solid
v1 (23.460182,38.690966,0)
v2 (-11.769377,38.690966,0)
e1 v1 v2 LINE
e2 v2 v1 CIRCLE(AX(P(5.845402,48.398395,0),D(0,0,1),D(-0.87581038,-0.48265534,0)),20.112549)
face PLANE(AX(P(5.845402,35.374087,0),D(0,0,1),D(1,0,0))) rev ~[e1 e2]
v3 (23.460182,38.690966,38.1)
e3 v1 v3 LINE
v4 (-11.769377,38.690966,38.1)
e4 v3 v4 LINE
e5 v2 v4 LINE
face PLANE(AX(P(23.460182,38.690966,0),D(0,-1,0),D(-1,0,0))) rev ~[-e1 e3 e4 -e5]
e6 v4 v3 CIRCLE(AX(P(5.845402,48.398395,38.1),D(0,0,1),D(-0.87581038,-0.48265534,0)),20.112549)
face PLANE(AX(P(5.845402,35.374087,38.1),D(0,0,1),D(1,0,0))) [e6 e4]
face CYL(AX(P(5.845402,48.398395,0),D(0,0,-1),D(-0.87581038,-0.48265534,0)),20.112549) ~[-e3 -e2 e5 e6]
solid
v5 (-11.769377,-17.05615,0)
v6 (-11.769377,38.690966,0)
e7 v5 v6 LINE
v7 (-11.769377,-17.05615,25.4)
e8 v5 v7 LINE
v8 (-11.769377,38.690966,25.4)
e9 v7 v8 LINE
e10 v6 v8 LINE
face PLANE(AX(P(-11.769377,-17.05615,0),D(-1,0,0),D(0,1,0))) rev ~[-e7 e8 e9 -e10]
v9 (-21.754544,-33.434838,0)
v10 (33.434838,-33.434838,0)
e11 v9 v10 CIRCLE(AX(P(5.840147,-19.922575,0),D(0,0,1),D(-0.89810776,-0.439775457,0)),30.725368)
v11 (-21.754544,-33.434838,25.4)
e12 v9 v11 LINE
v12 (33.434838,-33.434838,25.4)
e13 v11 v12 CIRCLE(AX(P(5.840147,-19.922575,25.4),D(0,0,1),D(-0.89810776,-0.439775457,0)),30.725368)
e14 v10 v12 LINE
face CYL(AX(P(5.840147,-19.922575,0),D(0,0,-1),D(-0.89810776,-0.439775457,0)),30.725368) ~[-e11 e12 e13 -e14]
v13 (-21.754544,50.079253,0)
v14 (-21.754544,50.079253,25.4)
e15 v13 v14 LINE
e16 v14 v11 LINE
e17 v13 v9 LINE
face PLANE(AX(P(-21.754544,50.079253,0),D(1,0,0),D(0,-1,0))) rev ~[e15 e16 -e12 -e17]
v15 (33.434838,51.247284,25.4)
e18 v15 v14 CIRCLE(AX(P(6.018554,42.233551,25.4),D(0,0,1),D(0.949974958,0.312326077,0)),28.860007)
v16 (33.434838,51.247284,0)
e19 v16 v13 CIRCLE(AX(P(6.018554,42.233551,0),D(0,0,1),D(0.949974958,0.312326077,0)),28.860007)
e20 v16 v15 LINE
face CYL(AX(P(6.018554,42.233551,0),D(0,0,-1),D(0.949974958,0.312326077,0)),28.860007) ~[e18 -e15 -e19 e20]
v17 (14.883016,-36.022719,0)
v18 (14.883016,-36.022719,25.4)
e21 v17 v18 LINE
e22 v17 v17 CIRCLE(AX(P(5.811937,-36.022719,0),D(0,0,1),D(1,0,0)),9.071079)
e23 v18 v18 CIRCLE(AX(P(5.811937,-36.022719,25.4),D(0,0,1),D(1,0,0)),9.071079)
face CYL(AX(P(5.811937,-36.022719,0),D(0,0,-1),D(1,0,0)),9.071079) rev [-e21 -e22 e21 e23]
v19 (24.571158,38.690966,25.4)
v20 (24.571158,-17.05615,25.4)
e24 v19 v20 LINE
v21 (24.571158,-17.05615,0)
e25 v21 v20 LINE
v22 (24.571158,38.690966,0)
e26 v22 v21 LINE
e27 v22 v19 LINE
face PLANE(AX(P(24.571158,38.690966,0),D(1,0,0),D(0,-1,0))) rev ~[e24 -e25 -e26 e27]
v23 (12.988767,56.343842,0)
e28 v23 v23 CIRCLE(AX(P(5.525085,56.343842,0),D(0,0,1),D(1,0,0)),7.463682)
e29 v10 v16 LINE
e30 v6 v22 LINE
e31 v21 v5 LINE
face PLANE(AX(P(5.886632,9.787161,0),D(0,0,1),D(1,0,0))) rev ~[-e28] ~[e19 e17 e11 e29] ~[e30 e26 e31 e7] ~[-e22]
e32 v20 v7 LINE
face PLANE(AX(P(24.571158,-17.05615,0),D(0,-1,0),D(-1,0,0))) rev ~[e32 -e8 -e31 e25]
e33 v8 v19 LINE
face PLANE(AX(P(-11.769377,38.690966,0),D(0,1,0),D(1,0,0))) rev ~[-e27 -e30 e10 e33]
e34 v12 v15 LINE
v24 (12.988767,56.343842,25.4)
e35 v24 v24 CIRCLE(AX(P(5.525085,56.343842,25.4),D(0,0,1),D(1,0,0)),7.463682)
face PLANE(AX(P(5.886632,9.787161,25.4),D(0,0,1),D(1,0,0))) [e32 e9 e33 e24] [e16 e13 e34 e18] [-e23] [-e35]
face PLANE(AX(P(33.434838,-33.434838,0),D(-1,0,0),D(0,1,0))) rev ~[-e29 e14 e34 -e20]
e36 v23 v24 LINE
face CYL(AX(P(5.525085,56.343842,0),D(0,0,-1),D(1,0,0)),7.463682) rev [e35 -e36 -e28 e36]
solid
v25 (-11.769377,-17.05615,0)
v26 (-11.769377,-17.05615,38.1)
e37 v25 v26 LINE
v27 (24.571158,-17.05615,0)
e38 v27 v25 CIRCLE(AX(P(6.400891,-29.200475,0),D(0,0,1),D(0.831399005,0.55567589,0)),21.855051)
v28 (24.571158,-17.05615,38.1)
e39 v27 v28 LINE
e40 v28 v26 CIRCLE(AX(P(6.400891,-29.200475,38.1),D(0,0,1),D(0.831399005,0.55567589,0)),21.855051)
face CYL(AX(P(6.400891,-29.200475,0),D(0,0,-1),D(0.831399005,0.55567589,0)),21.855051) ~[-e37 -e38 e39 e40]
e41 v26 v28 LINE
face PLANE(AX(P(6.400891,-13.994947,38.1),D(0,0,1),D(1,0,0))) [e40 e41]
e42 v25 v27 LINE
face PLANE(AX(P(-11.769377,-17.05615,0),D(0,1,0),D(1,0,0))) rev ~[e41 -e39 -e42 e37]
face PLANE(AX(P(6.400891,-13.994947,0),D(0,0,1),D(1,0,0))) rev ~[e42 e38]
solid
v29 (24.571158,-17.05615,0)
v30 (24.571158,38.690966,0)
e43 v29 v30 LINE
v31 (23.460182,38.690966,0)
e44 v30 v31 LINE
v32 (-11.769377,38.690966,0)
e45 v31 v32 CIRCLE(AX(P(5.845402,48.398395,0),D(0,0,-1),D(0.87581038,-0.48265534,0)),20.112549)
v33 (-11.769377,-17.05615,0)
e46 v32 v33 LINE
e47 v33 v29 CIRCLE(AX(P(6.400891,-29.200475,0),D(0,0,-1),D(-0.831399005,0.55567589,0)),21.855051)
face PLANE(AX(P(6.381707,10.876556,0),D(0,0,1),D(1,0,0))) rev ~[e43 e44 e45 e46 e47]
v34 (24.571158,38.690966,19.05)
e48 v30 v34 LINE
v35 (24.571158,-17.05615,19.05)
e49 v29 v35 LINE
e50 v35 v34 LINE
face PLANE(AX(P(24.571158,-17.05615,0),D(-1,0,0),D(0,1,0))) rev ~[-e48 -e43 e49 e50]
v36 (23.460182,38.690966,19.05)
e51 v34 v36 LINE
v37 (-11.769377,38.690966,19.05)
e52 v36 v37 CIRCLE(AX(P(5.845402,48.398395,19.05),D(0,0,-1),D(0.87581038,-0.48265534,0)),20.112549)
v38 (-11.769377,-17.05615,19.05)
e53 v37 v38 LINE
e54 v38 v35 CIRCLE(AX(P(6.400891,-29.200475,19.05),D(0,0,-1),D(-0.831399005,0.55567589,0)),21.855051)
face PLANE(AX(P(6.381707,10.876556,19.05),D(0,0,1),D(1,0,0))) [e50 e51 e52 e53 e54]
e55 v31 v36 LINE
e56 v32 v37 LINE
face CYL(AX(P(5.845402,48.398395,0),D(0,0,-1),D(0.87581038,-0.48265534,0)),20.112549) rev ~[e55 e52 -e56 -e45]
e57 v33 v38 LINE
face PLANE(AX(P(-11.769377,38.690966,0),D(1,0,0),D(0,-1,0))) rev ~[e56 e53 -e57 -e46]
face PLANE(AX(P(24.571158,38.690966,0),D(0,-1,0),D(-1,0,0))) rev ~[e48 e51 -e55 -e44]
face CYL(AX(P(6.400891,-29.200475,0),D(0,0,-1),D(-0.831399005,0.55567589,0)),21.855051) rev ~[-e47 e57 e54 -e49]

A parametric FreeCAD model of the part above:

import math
import FreeCAD as App
import Part
import Sketcher

V = App.Vector
Q = App.Units.Quantity


def add_polygon(sketch, points):
    """Adds a closed chain of lines whose ends are joined by coincident constraints."""
    first, n = sketch.GeometryCount, len(points)
    for a, b in zip(points, points[1:] + points[:1]):
        sketch.addGeometry(Part.LineSegment(App.Vector(*a, 0), App.Vector(*b, 0)), False)
    for i in range(n):
        sketch.addConstraint(Sketcher.Constraint("Coincident", first + i, 2, first + (i + 1) % n, 1))

doc = App.newDocument("Part")
body = doc.addObject("PartDesign::Body", "Body")
body.AllowCompound = True

sketch1 = body.newObject("Sketcher::SketchObject", "Sketch")
sketch1.AttachmentSupport = (doc.getObject("XY_Plane"), [""])
sketch1.MapMode = "FlatFace"
sketch1.addGeometry(Part.LineSegment(V(23, 39, 0), V(-12, 39, 0)), False)
sketch1.addGeometry(Part.ArcOfCircle(Part.Circle(V(6, 48, 0), V(0, 0, 1), 20), math.radians(-151), math.radians(-29)), False)
sketch1.addGeometry(Part.ArcOfCircle(Part.Circle(V(6, -29, 0), V(0, 0, 1), 22), math.radians(34), math.radians(146)), False)
sketch1.addGeometry(Part.LineSegment(V(-12, -17, 0), V(25, -17, 0)), False)
sketch1.addConstraint(Sketcher.Constraint("Coincident", 0, 1, 1, 2))
sketch1.addConstraint(Sketcher.Constraint("Coincident", 1, 1, 0, 2))
sketch1.addConstraint(Sketcher.Constraint("Coincident", 2, 1, 3, 2))
sketch1.addConstraint(Sketcher.Constraint("Coincident", 3, 1, 2, 2))
sketch1.addConstraint(Sketcher.Constraint("Horizontal", 0))
sketch1.addConstraint(Sketcher.Constraint("Horizontal", 3))
sketch1.addConstraint(Sketcher.Constraint("Vertical", 1, 1, 3, 1))
sketch1.addConstraint(Sketcher.Constraint("Radius", 1, Q("20.112549 mm")))
sketch1.addConstraint(Sketcher.Constraint("Radius", 2, Q("21.855051 mm")))
sketch1.addConstraint(Sketcher.Constraint("DistanceX", 0, 2, 0, 1, Q("35.229559 mm")))
sketch1.addConstraint(Sketcher.Constraint("DistanceX", 3, 1, 3, 2, Q("36.340535 mm")))
sketch1.addConstraint(Sketcher.Constraint("DistanceX", -1, 1, 2, 3, Q("6.400891 mm")))
sketch1.addConstraint(Sketcher.Constraint("DistanceY", 2, 1, -1, 1, Q("17.05615 mm")))
sketch1.addConstraint(Sketcher.Constraint("DistanceY", 2, 3, 1, 3, Q("77.59887 mm")))
pad1 = body.newObject("PartDesign::Pad", "Pad")
pad1.Profile = sketch1
pad1.Length = Q("1.5 in")
body2 = doc.addObject("PartDesign::Body", "Body001")

sketch2 = body2.newObject("Sketcher::SketchObject", "Sketch001")
sketch2.AttachmentSupport = (doc.getObject("XY_Plane001"), [""])
sketch2.MapMode = "FlatFace"
sketch2.addGeometry(Part.LineSegment(V(33, -33, 0), V(33, 51, 0)), False)
sketch2.addGeometry(Part.ArcOfCircle(Part.Circle(V(6, 42, 0), V(0, 0, 1), 29), math.radians(18), math.radians(164)), False)
sketch2.addGeometry(Part.LineSegment(V(-22, 50, 0), V(-22, -33, 0)), False)
sketch2.addGeometry(Part.ArcOfCircle(Part.Circle(V(6, -20, 0), V(0, 0, 1), 31), math.radians(-154), math.radians(-26)), False)
sketch2.addGeometry(Part.Circle(V(6, -36, 0), V(0, 0, 1), 9), False)
sketch2.addGeometry(Part.Circle(V(6, 56, 0), V(0, 0, 1), 7), False)
add_polygon(sketch2, [(25, -17), (-12, -17), (-12, 39), (25, 39)])
sketch2.addConstraint(Sketcher.Constraint("Coincident", 0, 2, 1, 1))
sketch2.addConstraint(Sketcher.Constraint("Coincident", 1, 2, 2, 1))
sketch2.addConstraint(Sketcher.Constraint("Coincident", 2, 2, 3, 1))
sketch2.addConstraint(Sketcher.Constraint("Coincident", 3, 2, 0, 1))
sketch2.addConstraint(Sketcher.Constraint("Vertical", 0))
sketch2.addConstraint(Sketcher.Constraint("Vertical", 2))
sketch2.addConstraint(Sketcher.Constraint("Horizontal", 6))
sketch2.addConstraint(Sketcher.Constraint("Vertical", 7))
sketch2.addConstraint(Sketcher.Constraint("Horizontal", 8))
sketch2.addConstraint(Sketcher.Constraint("Vertical", 9))
sketch2.addConstraint(Sketcher.Constraint("Horizontal", 2, 2, 3, 2))
sketch2.addConstraint(Sketcher.Constraint("Diameter", 4, Q("18.142158 mm")))
sketch2.addConstraint(Sketcher.Constraint("Diameter", 5, Q("14.927364 mm")))
sketch2.addConstraint(Sketcher.Constraint("Radius", 1, Q("28.860007 mm")))
sketch2.addConstraint(Sketcher.Constraint("Radius", 3, Q("30.725368 mm")))
sketch2.addConstraint(Sketcher.Constraint("DistanceY", 0, 1, 0, 2, Q("84.682122 mm")))
sketch2.addConstraint(Sketcher.Constraint("DistanceY", 2, 2, 2, 1, Q("83.514091 mm")))
sketch2.addConstraint(Sketcher.Constraint("DistanceX", 4, 3, 0, 2, Q("27.622901 mm")))
sketch2.addConstraint(Sketcher.Constraint("DistanceY", 1, 3, 1, 2, Q("7.845702 mm")))
sketch2.addConstraint(Sketcher.Constraint("DistanceY", 6, 2, 1, 3, Q("59.289701 mm")))
sketch2.addConstraint(Sketcher.Constraint("DistanceX", 1, 2, 8, 2, Q("46.325702 mm")))
sketch2.addConstraint(Sketcher.Constraint("DistanceX", 6, 2, 6, 1, Q("36.340535 mm")))
sketch2.addConstraint(Sketcher.Constraint("DistanceY", 7, 1, 7, 2, Q("55.747116 mm")))
sketch2.addConstraint(Sketcher.Constraint("DistanceY", -1, 1, 1, 3, Q("42.233551 mm")))
sketch2.addConstraint(Sketcher.Constraint("DistanceY", 4, 3, -1, 1, Q("36.022719 mm")))
sketch2.addConstraint(Sketcher.Constraint("DistanceX", -1, 1, 8, 2, Q("24.571158 mm")))
sketch2.addConstraint(Sketcher.Constraint("DistanceX", 5, 3, 1, 3, Q("0.493469 mm")))
sketch2.addConstraint(Sketcher.Constraint("DistanceY", 1, 3, 5, 3, Q("14.110291 mm")))
pad2 = body2.newObject("PartDesign::Pad", "Pad001")
pad2.Profile = sketch2
pad2.Length = Q("1 in")
body3 = doc.addObject("PartDesign::Body", "Body002")

sketch3 = body3.newObject("Sketcher::SketchObject", "Sketch002")
sketch3.AttachmentSupport = (doc.getObject("XY_Plane002"), [""])
sketch3.MapMode = "FlatFace"
sketch3.addGeometry(Part.ArcOfCircle(Part.Circle(V(5.8, 48.4, 0), V(0, 0, 1), 20.1), math.radians(-151), math.radians(-29)), False)
sketch3.addGeometry(Part.LineSegment(V(-11.8, 38.7, 0), V(-11.8, -17.1, 0)), False)
sketch3.addGeometry(Part.ArcOfCircle(Part.Circle(V(6.4, -29.2, 0), V(0, 0, 1), 21.9), math.radians(34), math.radians(146)), False)
sketch3.addGeometry(Part.LineSegment(V(24.6, -17.1, 0), V(24.6, 38.7, 0)), False)
sketch3.addGeometry(Part.LineSegment(V(24.6, 38.7, 0), V(23.5, 38.7, 0)), False)
sketch3.addConstraint(Sketcher.Constraint("Coincident", 0, 1, 1, 1))
sketch3.addConstraint(Sketcher.Constraint("Coincident", 1, 2, 2, 2))
sketch3.addConstraint(Sketcher.Constraint("Coincident", 2, 1, 3, 1))
sketch3.addConstraint(Sketcher.Constraint("Coincident", 3, 2, 4, 1))
sketch3.addConstraint(Sketcher.Constraint("Coincident", 4, 2, 0, 2))
sketch3.addConstraint(Sketcher.Constraint("Vertical", 1))
sketch3.addConstraint(Sketcher.Constraint("Vertical", 3))
sketch3.addConstraint(Sketcher.Constraint("Horizontal", 4))
sketch3.addConstraint(Sketcher.Constraint("Horizontal", 1, 2, 2, 1))
sketch3.addConstraint(Sketcher.Constraint("Horizontal", 0, 1, 3, 2))
sketch3.addConstraint(Sketcher.Constraint("Radius", 0, Q("20.112549 mm")))
sketch3.addConstraint(Sketcher.Constraint("Radius", 2, Q("21.855051 mm")))
sketch3.addConstraint(Sketcher.Constraint("DistanceX", 4, 2, 4, 1, Q("1.110976 mm")))
sketch3.addConstraint(Sketcher.Constraint("DistanceY", 1, 2, 1, 1, Q("55.747116 mm")))
sketch3.addConstraint(Sketcher.Constraint("DistanceX", -1, 1, 2, 3, Q("6.400891 mm")))
sketch3.addConstraint(Sketcher.Constraint("DistanceY", 1, 2, -1, 1, Q("17.05615 mm")))
sketch3.addConstraint(Sketcher.Constraint("DistanceX", -1, 1, 2, 1, Q("24.571158 mm")))
pad3 = body3.newObject("PartDesign::Pad", "Pad002")
pad3.Profile = sketch3
pad3.Length = Q("0.75 in")

doc.recompute()
